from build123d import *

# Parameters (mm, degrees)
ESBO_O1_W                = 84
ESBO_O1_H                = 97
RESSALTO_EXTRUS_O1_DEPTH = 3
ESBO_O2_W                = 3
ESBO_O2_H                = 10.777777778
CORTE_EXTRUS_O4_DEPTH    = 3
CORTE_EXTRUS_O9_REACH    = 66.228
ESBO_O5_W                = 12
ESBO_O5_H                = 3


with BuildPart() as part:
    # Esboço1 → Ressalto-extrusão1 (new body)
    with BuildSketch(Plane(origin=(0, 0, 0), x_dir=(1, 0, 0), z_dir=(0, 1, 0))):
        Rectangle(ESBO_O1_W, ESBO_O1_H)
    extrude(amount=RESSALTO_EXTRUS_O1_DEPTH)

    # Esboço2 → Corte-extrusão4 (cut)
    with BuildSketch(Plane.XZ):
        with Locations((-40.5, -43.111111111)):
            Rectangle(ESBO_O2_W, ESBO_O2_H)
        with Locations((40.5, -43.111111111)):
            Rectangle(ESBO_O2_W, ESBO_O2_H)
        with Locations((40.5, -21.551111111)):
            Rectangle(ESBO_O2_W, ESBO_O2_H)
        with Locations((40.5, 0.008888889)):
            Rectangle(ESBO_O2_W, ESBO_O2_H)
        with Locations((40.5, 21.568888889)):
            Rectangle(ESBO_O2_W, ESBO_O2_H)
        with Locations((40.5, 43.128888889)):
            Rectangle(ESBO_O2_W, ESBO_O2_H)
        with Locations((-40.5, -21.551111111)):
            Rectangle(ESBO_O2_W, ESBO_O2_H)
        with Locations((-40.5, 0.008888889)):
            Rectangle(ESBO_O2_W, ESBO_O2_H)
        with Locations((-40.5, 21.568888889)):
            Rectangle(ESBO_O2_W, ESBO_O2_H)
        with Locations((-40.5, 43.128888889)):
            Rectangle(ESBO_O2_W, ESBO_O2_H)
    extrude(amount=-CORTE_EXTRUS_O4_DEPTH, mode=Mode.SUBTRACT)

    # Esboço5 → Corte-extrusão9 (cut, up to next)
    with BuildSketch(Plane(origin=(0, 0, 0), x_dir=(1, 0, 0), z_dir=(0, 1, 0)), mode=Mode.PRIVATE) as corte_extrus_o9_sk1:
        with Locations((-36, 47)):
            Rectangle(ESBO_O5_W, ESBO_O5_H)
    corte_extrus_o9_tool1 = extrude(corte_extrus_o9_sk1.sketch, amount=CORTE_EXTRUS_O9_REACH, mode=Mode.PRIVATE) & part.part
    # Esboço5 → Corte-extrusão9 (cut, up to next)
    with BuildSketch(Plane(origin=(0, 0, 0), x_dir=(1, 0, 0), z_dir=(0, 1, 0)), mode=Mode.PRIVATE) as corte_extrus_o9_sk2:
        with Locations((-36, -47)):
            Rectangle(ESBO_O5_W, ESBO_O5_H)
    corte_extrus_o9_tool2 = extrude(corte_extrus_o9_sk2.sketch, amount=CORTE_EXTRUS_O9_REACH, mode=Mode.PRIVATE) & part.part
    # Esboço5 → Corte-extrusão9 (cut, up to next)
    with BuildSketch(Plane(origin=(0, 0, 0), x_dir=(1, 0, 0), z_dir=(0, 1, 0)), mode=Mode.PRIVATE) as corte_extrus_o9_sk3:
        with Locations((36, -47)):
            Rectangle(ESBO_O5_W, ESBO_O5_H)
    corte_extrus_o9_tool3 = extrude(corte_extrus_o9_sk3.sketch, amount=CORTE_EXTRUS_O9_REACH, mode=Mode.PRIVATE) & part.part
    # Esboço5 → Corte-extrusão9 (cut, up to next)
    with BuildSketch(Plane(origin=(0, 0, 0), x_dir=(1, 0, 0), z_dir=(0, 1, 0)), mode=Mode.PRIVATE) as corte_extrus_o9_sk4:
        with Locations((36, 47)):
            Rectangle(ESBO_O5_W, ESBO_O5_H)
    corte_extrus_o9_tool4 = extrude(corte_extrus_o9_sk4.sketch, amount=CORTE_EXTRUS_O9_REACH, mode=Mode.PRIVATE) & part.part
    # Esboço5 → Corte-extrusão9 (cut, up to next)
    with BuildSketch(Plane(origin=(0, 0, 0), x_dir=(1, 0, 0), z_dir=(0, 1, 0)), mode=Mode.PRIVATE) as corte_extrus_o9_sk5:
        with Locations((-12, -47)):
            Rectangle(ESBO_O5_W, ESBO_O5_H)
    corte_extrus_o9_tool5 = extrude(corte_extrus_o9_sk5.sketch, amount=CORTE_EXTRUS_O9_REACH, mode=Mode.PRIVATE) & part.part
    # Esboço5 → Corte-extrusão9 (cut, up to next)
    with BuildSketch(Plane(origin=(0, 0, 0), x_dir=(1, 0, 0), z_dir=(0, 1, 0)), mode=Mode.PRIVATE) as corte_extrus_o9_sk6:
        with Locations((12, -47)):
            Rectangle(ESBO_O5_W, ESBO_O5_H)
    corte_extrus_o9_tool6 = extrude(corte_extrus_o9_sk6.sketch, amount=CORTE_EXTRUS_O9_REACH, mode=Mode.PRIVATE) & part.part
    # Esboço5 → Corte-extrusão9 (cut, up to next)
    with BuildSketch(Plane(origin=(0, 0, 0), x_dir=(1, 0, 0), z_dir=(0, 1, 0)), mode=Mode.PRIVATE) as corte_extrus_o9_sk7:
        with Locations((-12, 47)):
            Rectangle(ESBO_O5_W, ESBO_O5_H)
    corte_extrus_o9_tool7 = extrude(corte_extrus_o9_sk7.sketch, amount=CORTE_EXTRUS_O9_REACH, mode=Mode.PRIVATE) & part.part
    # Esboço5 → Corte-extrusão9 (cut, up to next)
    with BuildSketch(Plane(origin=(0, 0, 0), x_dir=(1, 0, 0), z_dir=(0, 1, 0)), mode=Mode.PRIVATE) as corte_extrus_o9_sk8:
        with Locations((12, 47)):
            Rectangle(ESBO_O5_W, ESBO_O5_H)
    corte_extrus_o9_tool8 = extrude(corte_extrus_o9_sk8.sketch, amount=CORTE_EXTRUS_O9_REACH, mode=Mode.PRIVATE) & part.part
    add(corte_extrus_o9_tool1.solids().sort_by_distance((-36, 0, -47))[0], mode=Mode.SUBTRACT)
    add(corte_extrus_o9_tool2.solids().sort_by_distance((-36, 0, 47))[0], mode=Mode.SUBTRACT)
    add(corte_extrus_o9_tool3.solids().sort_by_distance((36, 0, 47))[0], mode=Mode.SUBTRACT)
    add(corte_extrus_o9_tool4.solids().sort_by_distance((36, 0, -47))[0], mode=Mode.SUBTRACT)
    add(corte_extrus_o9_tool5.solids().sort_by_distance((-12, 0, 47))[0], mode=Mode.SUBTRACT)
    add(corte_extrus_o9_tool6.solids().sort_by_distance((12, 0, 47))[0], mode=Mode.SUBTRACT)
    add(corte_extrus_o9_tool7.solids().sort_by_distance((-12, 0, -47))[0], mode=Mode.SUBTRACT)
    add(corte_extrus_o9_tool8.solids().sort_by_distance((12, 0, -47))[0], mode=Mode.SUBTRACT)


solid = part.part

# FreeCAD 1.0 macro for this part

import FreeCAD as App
import Part
import Sketcher
from FreeCAD import Vector
Q = App.Units.Quantity


def add_polygon(sketch, points):
    """Adds a closed chain of lines whose ends are joined by coincident constraints."""
    first, n = sketch.GeometryCount, len(points)
    for a, b in zip(points, points[1:] + points[:1]):
        sketch.addGeometry(Part.LineSegment(App.Vector(*a, 0), App.Vector(*b, 0)), False)
    for i in range(n):
        sketch.addConstraint(Sketcher.Constraint("Coincident", first + i, 2, first + (i + 1) % n, 1))

doc = App.newDocument("Part")
body = doc.addObject("PartDesign::Body", "Body")

sketch1 = doc.addObject("Sketcher::SketchObject", "Sketch")
body.addObject(sketch1)
sketch1.AttachmentSupport = (doc.XZ_Plane, [""])
sketch1.MapMode = "FlatFace"
add_polygon(sketch1, [(-42, -48), (-42, 48), (42, 48), (42, -48)])
sketch1.addConstraint(Sketcher.Constraint("Vertical", 0))
sketch1.addConstraint(Sketcher.Constraint("Horizontal", 1))
sketch1.addConstraint(Sketcher.Constraint("Vertical", 2))
sketch1.addConstraint(Sketcher.Constraint("Horizontal", 3))
sketch1.addConstraint(Sketcher.Constraint("Symmetric", 0, 2, 2, 2, -1, 1))
sketch1.addConstraint(Sketcher.Constraint("DistanceX", 1, 1, 1, 2, Q("84 mm")))
sketch1.addConstraint(Sketcher.Constraint("DistanceY", 0, 1, 0, 2, Q("97 mm")))
pad1 = doc.addObject("PartDesign::Pad", "Pad")
body.addObject(pad1)
pad1.Profile = sketch1
pad1.Length = 3
pad1.Reversed = True

sketch2 = doc.addObject("Sketcher::SketchObject", "Sketch001")
body.addObject(sketch2)
sketch2.AttachmentSupport = (doc.XZ_Plane, [""])
sketch2.MapMode = "FlatFace"
add_polygon(sketch2, [(-42, -37.7), (-42, -48.5), (-39, -48.5), (-39, -37.7)])
add_polygon(sketch2, [(39, -37.7), (39, -48.5), (42, -48.5), (42, -37.7)])
add_polygon(sketch2, [(39, -16.2), (39, -26.9), (42, -26.9), (42, -16.2)])
add_polygon(sketch2, [(39, 5.4), (39, -5.4), (42, -5.4), (42, 5.4)])
add_polygon(sketch2, [(39, 27), (39, 16.2), (42, 16.2), (42, 27)])
add_polygon(sketch2, [(39, 48.5), (39, 37.7), (42, 37.7), (42, 48.5)])
add_polygon(sketch2, [(-42, -16.2), (-42, -26.9), (-39, -26.9), (-39, -16.2)])
add_polygon(sketch2, [(-42, 5.4), (-42, -5.4), (-39, -5.4), (-39, 5.4)])
add_polygon(sketch2, [(-42, 27), (-42, 16.2), (-39, 16.2), (-39, 27)])
add_polygon(sketch2, [(-42, 48.5), (-42, 37.7), (-39, 37.7), (-39, 48.5)])
sketch2.addConstraint(Sketcher.Constraint("Vertical", 0))
sketch2.addConstraint(Sketcher.Constraint("Horizontal", 1))
sketch2.addConstraint(Sketcher.Constraint("Vertical", 2))
sketch2.addConstraint(Sketcher.Constraint("Horizontal", 3))
sketch2.addConstraint(Sketcher.Constraint("Vertical", 4))
sketch2.addConstraint(Sketcher.Constraint("Horizontal", 5))
sketch2.addConstraint(Sketcher.Constraint("Vertical", 6))
sketch2.addConstraint(Sketcher.Constraint("Horizontal", 7))
sketch2.addConstraint(Sketcher.Constraint("Vertical", 8))
sketch2.addConstraint(Sketcher.Constraint("Horizontal", 9))
sketch2.addConstraint(Sketcher.Constraint("Vertical", 10))
sketch2.addConstraint(Sketcher.Constraint("Horizontal", 11))
sketch2.addConstraint(Sketcher.Constraint("Vertical", 12))
sketch2.addConstraint(Sketcher.Constraint("Horizontal", 13))
sketch2.addConstraint(Sketcher.Constraint("Vertical", 14))
sketch2.addConstraint(Sketcher.Constraint("Horizontal", 15))
sketch2.addConstraint(Sketcher.Constraint("Vertical", 16))
sketch2.addConstraint(Sketcher.Constraint("Horizontal", 17))
sketch2.addConstraint(Sketcher.Constraint("Vertical", 18))
sketch2.addConstraint(Sketcher.Constraint("Horizontal", 19))
sketch2.addConstraint(Sketcher.Constraint("Vertical", 20))
sketch2.addConstraint(Sketcher.Constraint("Horizontal", 21))
sketch2.addConstraint(Sketcher.Constraint("Vertical", 22))
sketch2.addConstraint(Sketcher.Constraint("Horizontal", 23))
sketch2.addConstraint(Sketcher.Constraint("Vertical", 24))
sketch2.addConstraint(Sketcher.Constraint("Horizontal", 25))
sketch2.addConstraint(Sketcher.Constraint("Vertical", 26))
sketch2.addConstraint(Sketcher.Constraint("Horizontal", 27))
sketch2.addConstraint(Sketcher.Constraint("Vertical", 28))
sketch2.addConstraint(Sketcher.Constraint("Horizontal", 29))
sketch2.addConstraint(Sketcher.Constraint("Vertical", 30))
sketch2.addConstraint(Sketcher.Constraint("Horizontal", 31))
sketch2.addConstraint(Sketcher.Constraint("Vertical", 32))
sketch2.addConstraint(Sketcher.Constraint("Horizontal", 33))
sketch2.addConstraint(Sketcher.Constraint("Vertical", 34))
sketch2.addConstraint(Sketcher.Constraint("Horizontal", 35))
sketch2.addConstraint(Sketcher.Constraint("Vertical", 36))
sketch2.addConstraint(Sketcher.Constraint("Horizontal", 37))
sketch2.addConstraint(Sketcher.Constraint("Vertical", 38))
sketch2.addConstraint(Sketcher.Constraint("Horizontal", 39))
sketch2.addConstraint(Sketcher.Constraint("Symmetric", 1, 2, 4, 2, -2))
sketch2.addConstraint(Sketcher.Constraint("Symmetric", 3, 2, 6, 2, -2))
sketch2.addConstraint(Sketcher.Constraint("Symmetric", 9, 2, 24, 2, -2))
sketch2.addConstraint(Sketcher.Constraint("Symmetric", 11, 2, 26, 2, -2))
sketch2.addConstraint(Sketcher.Constraint("Symmetric", 13, 2, 28, 2, -2))
sketch2.addConstraint(Sketcher.Constraint("Symmetric", 15, 2, 30, 2, -2))
sketch2.addConstraint(Sketcher.Constraint("Symmetric", 17, 2, 32, 2, -2))
sketch2.addConstraint(Sketcher.Constraint("Symmetric", 19, 2, 34, 2, -2))
sketch2.addConstraint(Sketcher.Constraint("Symmetric", 21, 2, 36, 2, -2))
sketch2.addConstraint(Sketcher.Constraint("Symmetric", 23, 2, 38, 2, -2))
sketch2.addConstraint(Sketcher.Constraint("Vertical", 7, 2, 8, 2))
sketch2.addConstraint(Sketcher.Constraint("Vertical", 6, 2, 9, 2))
sketch2.addConstraint(Sketcher.Constraint("Vertical", 11, 2, 12, 2))
sketch2.addConstraint(Sketcher.Constraint("Vertical", 10, 2, 13, 2))
sketch2.addConstraint(Sketcher.Constraint("Vertical", 15, 2, 16, 2))
sketch2.addConstraint(Sketcher.Constraint("Vertical", 14, 2, 17, 2))
sketch2.addConstraint(Sketcher.Constraint("Vertical", 19, 2, 20, 2))
sketch2.addConstraint(Sketcher.Constraint("Vertical", 18, 2, 21, 2))
sketch2.addConstraint(Sketcher.Constraint("Equal", 6, 8))
sketch2.addConstraint(Sketcher.Constraint("Equal", 10, 12))
sketch2.addConstraint(Sketcher.Constraint("Equal", 14, 16))
sketch2.addConstraint(Sketcher.Constraint("Equal", 18, 20))
sketch2.addConstraint(Sketcher.Constraint("DistanceX", 1, 1, 1, 2, Q("3 mm")))
sketch2.addConstraint(Sketcher.Constraint("DistanceX", 0, 2, -1, 1, Q("42 mm")))
sketch2.addConstraint(Sketcher.Constraint("DistanceY", 0, 2, -1, 1, Q("48.5 mm")))
sketch2.addConstraint(Sketcher.Constraint("DistanceY", 8, 2, -1, 1, Q("26.94 mm")))
sketch2.addConstraint(Sketcher.Constraint("DistanceY", 12, 2, -1, 1, Q("5.38 mm")))
sketch2.addConstraint(Sketcher.Constraint("DistanceY", -1, 1, 16, 2, Q("16.18 mm")))
sketch2.addConstraint(Sketcher.Constraint("DistanceY", -1, 1, 20, 2, Q("37.74 mm")))
sketch2.addConstraint(Sketcher.Constraint("DistanceY", 0, 2, 0, 1, Q("10.777778 mm")))
pocket1 = doc.addObject("PartDesign::Pocket", "Pocket")
body.addObject(pocket1)
pocket1.Profile = sketch2
pocket1.Length = 3

sketch3 = doc.addObject("Sketcher::SketchObject", "Sketch002")
body.addObject(sketch3)
sketch3.AttachmentSupport = (doc.XZ_Plane, [""])
sketch3.MapMode = "FlatFace"
add_polygon(sketch3, [(-42, -48.5), (-42, -45.5), (-30, -45.5), (-30, -48.5)])
sketch3.addConstraint(Sketcher.Constraint("Vertical", 0))
sketch3.addConstraint(Sketcher.Constraint("Horizontal", 1))
sketch3.addConstraint(Sketcher.Constraint("Vertical", 2))
sketch3.addConstraint(Sketcher.Constraint("Horizontal", 3))
sketch3.addConstraint(Sketcher.Constraint("DistanceX", 1, 1, 1, 2, Q("12 mm")))
sketch3.addConstraint(Sketcher.Constraint("DistanceY", 0, 1, 0, 2, Q("3 mm")))
sketch3.addConstraint(Sketcher.Constraint("DistanceX", 0, 2, -1, 1, Q("42 mm")))
sketch3.addConstraint(Sketcher.Constraint("DistanceY", 0, 2, -1, 1, Q("45.5 mm")))
pocket2 = doc.addObject("PartDesign::Pocket", "Pocket001")
body.addObject(pocket2)
pocket2.Profile = sketch3
pocket2.Type = "UpToFirst"

sketch4 = doc.addObject("Sketcher::SketchObject", "Sketch003")
body.addObject(sketch4)
sketch4.AttachmentSupport = (doc.XZ_Plane, [""])
sketch4.MapMode = "FlatFace"
add_polygon(sketch4, [(-42, 45.5), (-42, 48.5), (-30, 48.5), (-30, 45.5)])
sketch4.addConstraint(Sketcher.Constraint("Vertical", 0))
sketch4.addConstraint(Sketcher.Constraint("Horizontal", 1))
sketch4.addConstraint(Sketcher.Constraint("Vertical", 2))
sketch4.addConstraint(Sketcher.Constraint("Horizontal", 3))
sketch4.addConstraint(Sketcher.Constraint("DistanceX", 1, 1, 1, 2, Q("12 mm")))
sketch4.addConstraint(Sketcher.Constraint("DistanceY", 0, 1, 0, 2, Q("3 mm")))
sketch4.addConstraint(Sketcher.Constraint("DistanceX", 0, 2, -1, 1, Q("42 mm")))
sketch4.addConstraint(Sketcher.Constraint("DistanceY", -1, 1, 0, 2, Q("48.5 mm")))
pocket3 = doc.addObject("PartDesign::Pocket", "Pocket002")
body.addObject(pocket3)
pocket3.Profile = sketch4
pocket3.Type = "UpToFirst"

sketch5 = doc.addObject("Sketcher::SketchObject", "Sketch004")
body.addObject(sketch5)
sketch5.AttachmentSupport = (doc.XZ_Plane, [""])
sketch5.MapMode = "FlatFace"
add_polygon(sketch5, [(30, 45.5), (30, 48.5), (42, 48.5), (42, 45.5)])
sketch5.addConstraint(Sketcher.Constraint("Vertical", 0))
sketch5.addConstraint(Sketcher.Constraint("Horizontal", 1))
sketch5.addConstraint(Sketcher.Constraint("Vertical", 2))
sketch5.addConstraint(Sketcher.Constraint("Horizontal", 3))
sketch5.addConstraint(Sketcher.Constraint("DistanceX", 1, 1, 1, 2, Q("12 mm")))
sketch5.addConstraint(Sketcher.Constraint("DistanceY", 0, 1, 0, 2, Q("3 mm")))
sketch5.addConstraint(Sketcher.Constraint("DistanceX", -1, 1, 0, 2, Q("30 mm")))
sketch5.addConstraint(Sketcher.Constraint("DistanceY", -1, 1, 0, 2, Q("48.5 mm")))
pocket4 = doc.addObject("PartDesign::Pocket", "Pocket003")
body.addObject(pocket4)
pocket4.Profile = sketch5
pocket4.Type = "UpToFirst"

sketch6 = doc.addObject("Sketcher::SketchObject", "Sketch005")
body.addObject(sketch6)
sketch6.AttachmentSupport = (doc.XZ_Plane, [""])
sketch6.MapMode = "FlatFace"
add_polygon(sketch6, [(30, -48.5), (30, -45.5), (42, -45.5), (42, -48.5)])
sketch6.addConstraint(Sketcher.Constraint("Vertical", 0))
sketch6.addConstraint(Sketcher.Constraint("Horizontal", 1))
sketch6.addConstraint(Sketcher.Constraint("Vertical", 2))
sketch6.addConstraint(Sketcher.Constraint("Horizontal", 3))
sketch6.addConstraint(Sketcher.Constraint("DistanceX", 1, 1, 1, 2, Q("12 mm")))
sketch6.addConstraint(Sketcher.Constraint("DistanceY", 0, 1, 0, 2, Q("3 mm")))
sketch6.addConstraint(Sketcher.Constraint("DistanceX", -1, 1, 0, 2, Q("30 mm")))
sketch6.addConstraint(Sketcher.Constraint("DistanceY", 0, 2, -1, 1, Q("45.5 mm")))
pocket5 = doc.addObject("PartDesign::Pocket", "Pocket004")
body.addObject(pocket5)
pocket5.Profile = sketch6
pocket5.Type = "UpToFirst"

sketch7 = doc.addObject("Sketcher::SketchObject", "Sketch006")
body.addObject(sketch7)
sketch7.AttachmentSupport = (doc.XZ_Plane, [""])
sketch7.MapMode = "FlatFace"
add_polygon(sketch7, [(-18, 45.5), (-18, 48.5), (-6, 48.5), (-6, 45.5)])
sketch7.addConstraint(Sketcher.Constraint("Vertical", 0))
sketch7.addConstraint(Sketcher.Constraint("Horizontal", 1))
sketch7.addConstraint(Sketcher.Constraint("Vertical", 2))
sketch7.addConstraint(Sketcher.Constraint("Horizontal", 3))
sketch7.addConstraint(Sketcher.Constraint("DistanceX", 1, 1, 1, 2, Q("12 mm")))
sketch7.addConstraint(Sketcher.Constraint("DistanceY", 0, 1, 0, 2, Q("3 mm")))
sketch7.addConstraint(Sketcher.Constraint("DistanceX", 0, 2, -1, 1, Q("18 mm")))
sketch7.addConstraint(Sketcher.Constraint("DistanceY", -1, 1, 0, 2, Q("48.5 mm")))
pocket6 = doc.addObject("PartDesign::Pocket", "Pocket005")
body.addObject(pocket6)
pocket6.Profile = sketch7
pocket6.Type = "UpToFirst"

sketch8 = doc.addObject("Sketcher::SketchObject", "Sketch007")
body.addObject(sketch8)
sketch8.AttachmentSupport = (doc.XZ_Plane, [""])
sketch8.MapMode = "FlatFace"
add_polygon(sketch8, [(6, 45.5), (6, 48.5), (18, 48.5), (18, 45.5)])
sketch8.addConstraint(Sketcher.Constraint("Vertical", 0))
sketch8.addConstraint(Sketcher.Constraint("Horizontal", 1))
sketch8.addConstraint(Sketcher.Constraint("Vertical", 2))
sketch8.addConstraint(Sketcher.Constraint("Horizontal", 3))
sketch8.addConstraint(Sketcher.Constraint("DistanceX", 1, 1, 1, 2, Q("12 mm")))
sketch8.addConstraint(Sketcher.Constraint("DistanceY", 0, 1, 0, 2, Q("3 mm")))
sketch8.addConstraint(Sketcher.Constraint("DistanceX", -1, 1, 0, 2, Q("6 mm")))
sketch8.addConstraint(Sketcher.Constraint("DistanceY", -1, 1, 0, 2, Q("48.5 mm")))
pocket7 = doc.addObject("PartDesign::Pocket", "Pocket006")
body.addObject(pocket7)
pocket7.Profile = sketch8
pocket7.Type = "UpToFirst"

sketch9 = doc.addObject("Sketcher::SketchObject", "Sketch008")
body.addObject(sketch9)
sketch9.AttachmentSupport = (doc.XZ_Plane, [""])
sketch9.MapMode = "FlatFace"
add_polygon(sketch9, [(-18, -48.5), (-18, -45.5), (-6, -45.5), (-6, -48.5)])
sketch9.addConstraint(Sketcher.Constraint("Vertical", 0))
sketch9.addConstraint(Sketcher.Constraint("Horizontal", 1))
sketch9.addConstraint(Sketcher.Constraint("Vertical", 2))
sketch9.addConstraint(Sketcher.Constraint("Horizontal", 3))
sketch9.addConstraint(Sketcher.Constraint("DistanceX", 1, 1, 1, 2, Q("12 mm")))
sketch9.addConstraint(Sketcher.Constraint("DistanceY", 0, 1, 0, 2, Q("3 mm")))
sketch9.addConstraint(Sketcher.Constraint("DistanceX", 0, 2, -1, 1, Q("18 mm")))
sketch9.addConstraint(Sketcher.Constraint("DistanceY", 0, 2, -1, 1, Q("45.5 mm")))
pocket8 = doc.addObject("PartDesign::Pocket", "Pocket007")
body.addObject(pocket8)
pocket8.Profile = sketch9
pocket8.Type = "UpToFirst"

sketch10 = doc.addObject("Sketcher::SketchObject", "Sketch009")
body.addObject(sketch10)
sketch10.AttachmentSupport = (doc.XZ_Plane, [""])
sketch10.MapMode = "FlatFace"
add_polygon(sketch10, [(6, -48.5), (6, -45.5), (18, -45.5), (18, -48.5)])
sketch10.addConstraint(Sketcher.Constraint("Vertical", 0))
sketch10.addConstraint(Sketcher.Constraint("Horizontal", 1))
sketch10.addConstraint(Sketcher.Constraint("Vertical", 2))
sketch10.addConstraint(Sketcher.Constraint("Horizontal", 3))
sketch10.addConstraint(Sketcher.Constraint("DistanceX", 1, 1, 1, 2, Q("12 mm")))
sketch10.addConstraint(Sketcher.Constraint("DistanceY", 0, 1, 0, 2, Q("3 mm")))
sketch10.addConstraint(Sketcher.Constraint("DistanceX", -1, 1, 0, 2, Q("6 mm")))
sketch10.addConstraint(Sketcher.Constraint("DistanceY", 0, 2, -1, 1, Q("45.5 mm")))
pocket9 = doc.addObject("PartDesign::Pocket", "Pocket008")
body.addObject(pocket9)
pocket9.Profile = sketch10
pocket9.Type = "UpToFirst"

doc.recompute()
